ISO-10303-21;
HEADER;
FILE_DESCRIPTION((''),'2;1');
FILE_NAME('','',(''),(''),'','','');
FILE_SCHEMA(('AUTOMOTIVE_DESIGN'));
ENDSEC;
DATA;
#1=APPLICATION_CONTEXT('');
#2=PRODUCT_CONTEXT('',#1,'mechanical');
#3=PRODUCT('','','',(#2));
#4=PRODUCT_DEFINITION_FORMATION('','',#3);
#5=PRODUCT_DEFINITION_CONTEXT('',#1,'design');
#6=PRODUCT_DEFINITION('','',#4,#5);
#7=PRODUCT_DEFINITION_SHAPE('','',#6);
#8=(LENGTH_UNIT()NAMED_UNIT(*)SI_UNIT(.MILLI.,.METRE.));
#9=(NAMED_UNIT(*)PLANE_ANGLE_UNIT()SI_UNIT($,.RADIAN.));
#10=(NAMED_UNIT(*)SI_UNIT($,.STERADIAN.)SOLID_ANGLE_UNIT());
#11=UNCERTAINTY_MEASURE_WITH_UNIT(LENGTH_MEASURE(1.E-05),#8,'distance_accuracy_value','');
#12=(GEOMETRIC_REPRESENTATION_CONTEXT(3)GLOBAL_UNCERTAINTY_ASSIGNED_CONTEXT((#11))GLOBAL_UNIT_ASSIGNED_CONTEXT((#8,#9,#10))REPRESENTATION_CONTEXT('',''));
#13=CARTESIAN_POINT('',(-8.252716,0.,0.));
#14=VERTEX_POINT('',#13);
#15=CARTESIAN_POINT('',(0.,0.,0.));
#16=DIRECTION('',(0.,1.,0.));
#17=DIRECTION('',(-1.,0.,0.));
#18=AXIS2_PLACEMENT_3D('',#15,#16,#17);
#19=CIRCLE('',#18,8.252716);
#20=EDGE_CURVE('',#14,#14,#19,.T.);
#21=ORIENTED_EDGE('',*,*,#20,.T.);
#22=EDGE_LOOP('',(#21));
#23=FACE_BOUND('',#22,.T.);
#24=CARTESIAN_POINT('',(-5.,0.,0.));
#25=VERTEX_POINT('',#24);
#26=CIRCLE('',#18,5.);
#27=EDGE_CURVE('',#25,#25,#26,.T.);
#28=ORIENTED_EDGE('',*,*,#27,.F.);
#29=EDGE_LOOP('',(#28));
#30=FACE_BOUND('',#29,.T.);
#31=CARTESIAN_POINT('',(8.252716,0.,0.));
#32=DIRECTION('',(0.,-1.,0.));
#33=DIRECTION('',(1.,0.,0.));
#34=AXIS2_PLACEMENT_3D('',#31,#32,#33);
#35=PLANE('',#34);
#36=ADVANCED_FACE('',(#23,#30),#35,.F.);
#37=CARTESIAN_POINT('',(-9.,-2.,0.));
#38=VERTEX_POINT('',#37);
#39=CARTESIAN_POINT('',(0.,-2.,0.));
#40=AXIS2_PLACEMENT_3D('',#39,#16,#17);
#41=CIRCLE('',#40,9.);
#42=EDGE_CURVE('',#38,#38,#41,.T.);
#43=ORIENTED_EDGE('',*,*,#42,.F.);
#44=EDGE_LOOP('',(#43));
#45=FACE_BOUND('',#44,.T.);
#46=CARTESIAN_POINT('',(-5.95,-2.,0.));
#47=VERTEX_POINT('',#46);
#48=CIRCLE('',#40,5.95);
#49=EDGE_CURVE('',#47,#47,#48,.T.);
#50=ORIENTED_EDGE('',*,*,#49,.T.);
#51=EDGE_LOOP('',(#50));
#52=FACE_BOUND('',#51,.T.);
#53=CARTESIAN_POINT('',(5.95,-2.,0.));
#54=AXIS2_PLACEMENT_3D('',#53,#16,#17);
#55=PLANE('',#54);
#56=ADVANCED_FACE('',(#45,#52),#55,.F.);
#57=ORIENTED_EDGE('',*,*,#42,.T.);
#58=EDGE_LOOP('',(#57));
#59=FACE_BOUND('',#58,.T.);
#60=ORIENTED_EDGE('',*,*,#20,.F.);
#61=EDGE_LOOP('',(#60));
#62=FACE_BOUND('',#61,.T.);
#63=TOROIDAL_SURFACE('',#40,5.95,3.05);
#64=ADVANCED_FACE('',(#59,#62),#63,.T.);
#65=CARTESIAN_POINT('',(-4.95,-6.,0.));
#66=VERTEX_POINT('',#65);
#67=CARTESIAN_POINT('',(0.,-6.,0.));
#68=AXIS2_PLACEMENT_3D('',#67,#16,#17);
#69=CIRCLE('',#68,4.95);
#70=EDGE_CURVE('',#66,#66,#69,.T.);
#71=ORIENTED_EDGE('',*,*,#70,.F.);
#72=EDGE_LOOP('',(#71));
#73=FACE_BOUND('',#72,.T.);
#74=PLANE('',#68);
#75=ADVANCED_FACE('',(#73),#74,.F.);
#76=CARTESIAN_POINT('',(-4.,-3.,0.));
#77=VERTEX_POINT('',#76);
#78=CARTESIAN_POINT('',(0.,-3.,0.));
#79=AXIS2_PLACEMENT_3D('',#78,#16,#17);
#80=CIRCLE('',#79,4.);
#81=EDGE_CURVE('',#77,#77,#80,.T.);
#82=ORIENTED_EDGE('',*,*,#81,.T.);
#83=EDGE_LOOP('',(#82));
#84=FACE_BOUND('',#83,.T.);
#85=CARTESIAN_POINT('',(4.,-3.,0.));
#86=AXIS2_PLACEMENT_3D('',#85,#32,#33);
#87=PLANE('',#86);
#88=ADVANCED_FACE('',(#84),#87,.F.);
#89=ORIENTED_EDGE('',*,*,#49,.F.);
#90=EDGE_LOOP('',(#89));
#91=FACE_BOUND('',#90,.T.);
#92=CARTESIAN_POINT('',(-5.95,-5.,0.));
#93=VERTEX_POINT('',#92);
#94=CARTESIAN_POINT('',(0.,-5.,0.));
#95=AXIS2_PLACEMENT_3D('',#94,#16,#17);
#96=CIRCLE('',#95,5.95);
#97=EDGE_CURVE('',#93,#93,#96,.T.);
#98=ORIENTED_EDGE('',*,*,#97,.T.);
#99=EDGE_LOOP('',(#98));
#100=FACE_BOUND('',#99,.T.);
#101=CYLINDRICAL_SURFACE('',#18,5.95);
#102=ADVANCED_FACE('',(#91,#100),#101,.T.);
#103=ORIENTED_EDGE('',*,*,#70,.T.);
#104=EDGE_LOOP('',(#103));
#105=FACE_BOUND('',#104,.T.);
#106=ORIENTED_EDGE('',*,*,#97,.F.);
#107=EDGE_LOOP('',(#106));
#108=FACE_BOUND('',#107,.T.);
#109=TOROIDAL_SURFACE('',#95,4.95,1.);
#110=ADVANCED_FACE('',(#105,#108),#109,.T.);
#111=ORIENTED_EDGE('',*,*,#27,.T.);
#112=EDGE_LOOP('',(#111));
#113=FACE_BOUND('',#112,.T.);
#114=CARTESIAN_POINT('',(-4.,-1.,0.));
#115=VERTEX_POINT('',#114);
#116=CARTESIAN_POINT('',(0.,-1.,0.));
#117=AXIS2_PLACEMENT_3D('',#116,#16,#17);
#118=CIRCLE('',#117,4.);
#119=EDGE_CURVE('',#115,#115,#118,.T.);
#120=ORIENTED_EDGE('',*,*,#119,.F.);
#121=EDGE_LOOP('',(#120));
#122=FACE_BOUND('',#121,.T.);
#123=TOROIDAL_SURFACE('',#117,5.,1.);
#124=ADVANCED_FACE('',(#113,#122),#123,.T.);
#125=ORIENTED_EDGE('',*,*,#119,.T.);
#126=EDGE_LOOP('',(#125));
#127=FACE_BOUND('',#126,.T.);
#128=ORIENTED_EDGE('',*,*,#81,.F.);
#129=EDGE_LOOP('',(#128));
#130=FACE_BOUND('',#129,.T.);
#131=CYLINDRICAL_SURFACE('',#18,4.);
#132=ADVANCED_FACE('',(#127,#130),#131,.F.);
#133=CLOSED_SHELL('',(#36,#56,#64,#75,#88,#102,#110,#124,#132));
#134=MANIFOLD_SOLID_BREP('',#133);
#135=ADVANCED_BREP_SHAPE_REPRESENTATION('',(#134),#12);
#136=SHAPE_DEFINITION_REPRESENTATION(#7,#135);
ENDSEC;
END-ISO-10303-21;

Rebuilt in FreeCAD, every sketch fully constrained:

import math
import FreeCAD as App
import Part
import Sketcher

doc = App.newDocument("Part")
body = doc.addObject("PartDesign::Body", "Body")

# Sketch on XY plane
sketch1 = body.newObject("Sketcher::SketchObject", "Sketch")
sketch1.AttachmentSupport = (doc.getObject("XY_Plane"), [""])
sketch1.MapMode = "FlatFace"
sketch1.addGeometry([
    Part.LineSegment(App.Vector(0, -6, 0), App.Vector(5, -6, 0)),  # 0
    Part.ArcOfCircle(Part.Circle(App.Vector(4.9, -5, 0), App.Vector(0, 0, 1), 1), math.radians(-90), math.radians(0)),  # 1
    Part.LineSegment(App.Vector(6, -5, 0), App.Vector(6, -2, 0)),  # 2
    Part.LineSegment(App.Vector(6, -2, 0), App.Vector(9, -2, 0)),  # 3
    Part.ArcOfCircle(Part.Circle(App.Vector(6, -2, 0), App.Vector(0, 0, 1), 3), math.radians(0), math.radians(41)),  # 4
    Part.LineSegment(App.Vector(8.3, 0, 0), App.Vector(5, 0, 0)),  # 5
    Part.ArcOfCircle(Part.Circle(App.Vector(5, -1, 0), App.Vector(0, 0, 1), 1), math.radians(90), math.radians(180)),  # 6
    Part.LineSegment(App.Vector(4, -1, 0), App.Vector(4, -3, 0)),  # 7
    Part.LineSegment(App.Vector(4, -3, 0), App.Vector(0, -3, 0)),  # 8
    Part.LineSegment(App.Vector(0, -3, 0), App.Vector(0, -6, 0)),  # 9
], False)
sketch1.addConstraint([
    Sketcher.Constraint("Tangent", 0, 2, 1, 1),
    Sketcher.Constraint("Tangent", 1, 2, 2, 1),
    Sketcher.Constraint("Coincident", 2, 2, 3, 1),
    Sketcher.Constraint("Coincident", 3, 2, 4, 1),
    Sketcher.Constraint("Coincident", 4, 2, 5, 1),
    Sketcher.Constraint("Tangent", 5, 2, 6, 1),
    Sketcher.Constraint("Tangent", 6, 2, 7, 1),
    Sketcher.Constraint("Coincident", 7, 2, 8, 1),
    Sketcher.Constraint("Coincident", 8, 2, 9, 1),
    Sketcher.Constraint("Coincident", 9, 2, 0, 1),
    Sketcher.Constraint("Horizontal", 0),
    Sketcher.Constraint("Vertical", 2),
    Sketcher.Constraint("Horizontal", 3),
    Sketcher.Constraint("Horizontal", 5),
    Sketcher.Constraint("Vertical", 7),
    Sketcher.Constraint("Horizontal", 8),
    Sketcher.Constraint("Vertical", 9),
    Sketcher.Constraint("Coincident", 2, 2, 4, 3),
    Sketcher.Constraint("Equal", 1, 6),
    Sketcher.Constraint("PointOnObject", 4, 2, -1),
    Sketcher.Constraint("PointOnObject", 8, 2, -2),
    Sketcher.Constraint("Equal", 2, 9),
    Sketcher.Constraint("Radius", 1, 1.0),
    Sketcher.Constraint("DistanceX", 8, 2, 8, 1, 4.0),
    Sketcher.Constraint("DistanceY", 2, 1, 2, 2, 3.0),
    Sketcher.Constraint("DistanceY", 7, 2, 7, 1, 2.0),
    Sketcher.Constraint("Radius", 4, 3.05),
    Sketcher.Constraint("DistanceX", -1, 1, 3, 2, 9.0),
])
revolution = body.newObject("PartDesign::Revolution", "Revolution")
revolution.Profile = sketch1
revolution.ReferenceAxis = (sketch1, ["V_Axis"])
revolution.Angle = 360

doc.recompute()
